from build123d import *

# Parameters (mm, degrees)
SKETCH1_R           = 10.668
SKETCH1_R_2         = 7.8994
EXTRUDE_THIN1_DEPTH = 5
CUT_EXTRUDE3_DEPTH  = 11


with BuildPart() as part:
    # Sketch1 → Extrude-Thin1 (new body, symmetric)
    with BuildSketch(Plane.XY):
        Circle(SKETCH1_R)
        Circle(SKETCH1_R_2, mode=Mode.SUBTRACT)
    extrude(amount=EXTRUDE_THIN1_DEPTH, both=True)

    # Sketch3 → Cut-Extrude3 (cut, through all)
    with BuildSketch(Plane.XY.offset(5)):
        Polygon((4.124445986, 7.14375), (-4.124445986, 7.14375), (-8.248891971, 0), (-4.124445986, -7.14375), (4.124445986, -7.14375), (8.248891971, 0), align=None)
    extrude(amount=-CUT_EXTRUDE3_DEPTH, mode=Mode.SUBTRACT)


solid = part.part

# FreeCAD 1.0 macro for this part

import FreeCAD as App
import Part
import Sketcher

V = App.Vector
Q = App.Units.Quantity


def add_polygon(sketch, points):
    """Adds a closed chain of lines whose ends are joined by coincident constraints."""
    first, n = sketch.GeometryCount, len(points)
    for a, b in zip(points, points[1:] + points[:1]):
        sketch.addGeometry(Part.LineSegment(App.Vector(*a, 0), App.Vector(*b, 0)), False)
    for i in range(n):
        sketch.addConstraint(Sketcher.Constraint("Coincident", first + i, 2, first + (i + 1) % n, 1))

doc = App.newDocument("Part")
body = doc.addObject("PartDesign::Body", "Body")

sketch1 = body.newObject("Sketcher::SketchObject", "Sketch")
sketch1.AttachmentSupport = (doc.getObject("XY_Plane"), [""])
sketch1.MapMode = "FlatFace"
sketch1.addGeometry(Part.Circle(V(0, 0, 0), V(0, 0, 1), 11), False)
sketch1.addGeometry(Part.Circle(V(0, 0, 0), V(0, 0, 1), 8), False)
sketch1.addConstraint(Sketcher.Constraint("Coincident", 0, 3, -1, 1))
sketch1.addConstraint(Sketcher.Constraint("Coincident", 1, 3, -1, 1))
sketch1.addConstraint(Sketcher.Constraint("Diameter", 0, Q("21.336 mm")))
sketch1.addConstraint(Sketcher.Constraint("Diameter", 1, Q("15.7988 mm")))
pad1 = body.newObject("PartDesign::Pad", "Pad")
pad1.Profile = sketch1
pad1.Length = 10
pad1.Midplane = True

sketch2 = body.newObject("Sketcher::SketchObject", "Sketch001")
sketch2.AttachmentSupport = (doc.getObject("XY_Plane"), [""])
sketch2.MapMode = "FlatFace"
sketch2.AttachmentOffset = App.Placement(V(0, 0, 5), App.Rotation())
add_polygon(sketch2, [(4, 7), (-4, 7), (-8, 0), (-4, -7), (4, -7), (8, 0)])
sketch2.addConstraint(Sketcher.Constraint("Horizontal", 0))
sketch2.addConstraint(Sketcher.Constraint("Horizontal", 3))
sketch2.addConstraint(Sketcher.Constraint("Symmetric", 0, 2, 3, 2, -1, 1))
sketch2.addConstraint(Sketcher.Constraint("Symmetric", 1, 2, 4, 2, -1, 1))
sketch2.addConstraint(Sketcher.Constraint("PointOnObject", 1, 2, -1))
sketch2.addConstraint(Sketcher.Constraint("Parallel", 2, 5))
sketch2.addConstraint(Sketcher.Constraint("Vertical", 0, 2, 2, 2))
sketch2.addConstraint(Sketcher.Constraint("Angle", 1, Q("-120 deg")))
sketch2.addConstraint(Sketcher.Constraint("DistanceX", 0, 2, 0, 1, Q("8.248892 mm")))
sketch2.addConstraint(Sketcher.Constraint("DistanceY", 2, 2, 0, 2, Q("14.2875 mm")))
pocket1 = body.newObject("PartDesign::Pocket", "Pocket")
pocket1.Profile = sketch2
pocket1.Type = "ThroughAll"

doc.recompute()
